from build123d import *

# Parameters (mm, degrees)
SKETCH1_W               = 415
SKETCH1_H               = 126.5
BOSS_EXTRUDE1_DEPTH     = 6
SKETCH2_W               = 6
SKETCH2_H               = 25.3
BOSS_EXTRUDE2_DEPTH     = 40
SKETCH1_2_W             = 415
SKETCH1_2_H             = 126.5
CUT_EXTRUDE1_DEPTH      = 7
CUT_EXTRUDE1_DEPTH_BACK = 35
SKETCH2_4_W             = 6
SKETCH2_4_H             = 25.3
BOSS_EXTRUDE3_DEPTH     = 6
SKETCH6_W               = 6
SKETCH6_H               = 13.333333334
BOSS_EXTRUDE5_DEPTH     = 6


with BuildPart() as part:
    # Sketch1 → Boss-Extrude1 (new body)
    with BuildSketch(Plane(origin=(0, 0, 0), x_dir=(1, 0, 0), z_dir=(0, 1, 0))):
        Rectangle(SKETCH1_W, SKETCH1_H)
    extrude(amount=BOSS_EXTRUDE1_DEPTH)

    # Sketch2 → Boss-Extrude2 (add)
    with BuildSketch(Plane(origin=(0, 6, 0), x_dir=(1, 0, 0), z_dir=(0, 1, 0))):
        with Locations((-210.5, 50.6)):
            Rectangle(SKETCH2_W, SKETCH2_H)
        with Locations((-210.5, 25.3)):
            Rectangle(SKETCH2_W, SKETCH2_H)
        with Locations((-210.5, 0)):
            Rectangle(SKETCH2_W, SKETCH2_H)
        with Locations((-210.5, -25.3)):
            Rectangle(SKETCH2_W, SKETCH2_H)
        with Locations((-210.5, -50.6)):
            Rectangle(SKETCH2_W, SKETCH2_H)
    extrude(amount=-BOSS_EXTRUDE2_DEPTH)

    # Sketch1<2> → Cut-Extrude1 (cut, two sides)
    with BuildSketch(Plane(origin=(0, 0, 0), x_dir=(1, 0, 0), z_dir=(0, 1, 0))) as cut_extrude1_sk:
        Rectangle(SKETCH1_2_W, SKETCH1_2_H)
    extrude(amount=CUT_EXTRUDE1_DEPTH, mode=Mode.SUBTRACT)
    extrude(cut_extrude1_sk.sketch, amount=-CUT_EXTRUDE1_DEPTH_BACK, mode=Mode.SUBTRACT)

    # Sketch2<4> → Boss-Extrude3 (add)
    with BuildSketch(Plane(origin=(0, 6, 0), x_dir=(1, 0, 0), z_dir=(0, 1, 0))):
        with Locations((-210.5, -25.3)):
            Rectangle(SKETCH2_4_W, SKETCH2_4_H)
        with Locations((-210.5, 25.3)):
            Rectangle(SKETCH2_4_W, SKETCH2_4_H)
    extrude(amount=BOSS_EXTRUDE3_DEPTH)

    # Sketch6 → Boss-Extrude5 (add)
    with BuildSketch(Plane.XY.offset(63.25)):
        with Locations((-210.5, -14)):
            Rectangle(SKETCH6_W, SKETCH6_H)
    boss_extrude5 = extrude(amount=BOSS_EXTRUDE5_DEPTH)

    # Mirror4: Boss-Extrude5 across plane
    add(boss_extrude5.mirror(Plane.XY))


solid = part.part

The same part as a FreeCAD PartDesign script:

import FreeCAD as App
import Part
import Sketcher

doc = App.newDocument("Part")
body = doc.addObject("PartDesign::Body", "Body")

# Sketch on XZ plane
sketch1 = body.newObject("Sketcher::SketchObject", "Sketch")
sketch1.AttachmentSupport = (doc.getObject("XZ_Plane"), [""])
sketch1.MapMode = "FlatFace"
sketch1.addGeometry(Part.LineSegment(App.Vector(-208, -63, 0), App.Vector(-208, 63, 0)), False)
sketch1.addGeometry(Part.LineSegment(App.Vector(-208, 63, 0), App.Vector(208, 63, 0)), False)
sketch1.addGeometry(Part.LineSegment(App.Vector(208, 63, 0), App.Vector(208, -63, 0)), False)
sketch1.addGeometry(Part.LineSegment(App.Vector(208, -63, 0), App.Vector(-208, -63, 0)), False)
sketch1.addConstraint(Sketcher.Constraint("Coincident", 0, 2, 1, 1))
sketch1.addConstraint(Sketcher.Constraint("Coincident", 1, 2, 2, 1))
sketch1.addConstraint(Sketcher.Constraint("Coincident", 2, 2, 3, 1))
sketch1.addConstraint(Sketcher.Constraint("Coincident", 3, 2, 0, 1))
sketch1.addConstraint(Sketcher.Constraint("Vertical", 0))
sketch1.addConstraint(Sketcher.Constraint("Horizontal", 1))
sketch1.addConstraint(Sketcher.Constraint("Vertical", 2))
sketch1.addConstraint(Sketcher.Constraint("Horizontal", 3))
sketch1.addConstraint(Sketcher.Constraint("Symmetric", 0, 2, 2, 2, -1, 1))
sketch1.addConstraint(Sketcher.Constraint("DistanceX", 1, 1, 1, 2, 415.0))
sketch1.addConstraint(Sketcher.Constraint("DistanceY", 0, 1, 0, 2, 126.5))
pad1 = body.newObject("PartDesign::Pad", "Pad")
pad1.Profile = sketch1
pad1.Length = 6
pad1.Reversed = True

# Sketch on XZ plane
sketch2 = body.newObject("Sketcher::SketchObject", "Sketch001")
sketch2.AttachmentSupport = (doc.getObject("XZ_Plane"), [""])
sketch2.MapMode = "FlatFace"
sketch2.AttachmentOffset = App.Placement(App.Vector(0, 0, -6), App.Rotation())
sketch2.addGeometry(Part.LineSegment(App.Vector(-214, -63, 0), App.Vector(-214, 63, 0)), False)
sketch2.addGeometry(Part.LineSegment(App.Vector(-214, 63, 0), App.Vector(-208, 63, 0)), False)
sketch2.addGeometry(Part.LineSegment(App.Vector(-208, 63, 0), App.Vector(-208, -63, 0)), False)
sketch2.addGeometry(Part.LineSegment(App.Vector(-208, -63, 0), App.Vector(-214, -63, 0)), False)
sketch2.addConstraint(Sketcher.Constraint("Coincident", 0, 2, 1, 1))
sketch2.addConstraint(Sketcher.Constraint("Coincident", 1, 2, 2, 1))
sketch2.addConstraint(Sketcher.Constraint("Coincident", 2, 2, 3, 1))
sketch2.addConstraint(Sketcher.Constraint("Coincident", 3, 2, 0, 1))
sketch2.addConstraint(Sketcher.Constraint("Vertical", 0))
sketch2.addConstraint(Sketcher.Constraint("Horizontal", 1))
sketch2.addConstraint(Sketcher.Constraint("Vertical", 2))
sketch2.addConstraint(Sketcher.Constraint("Horizontal", 3))
sketch2.addConstraint(Sketcher.Constraint("DistanceX", 1, 1, 1, 2, 6.0))
sketch2.addConstraint(Sketcher.Constraint("DistanceY", 0, 1, 0, 2, 126.5))
sketch2.addConstraint(Sketcher.Constraint("DistanceX", 0, 2, -1, 1, 213.5))
sketch2.addConstraint(Sketcher.Constraint("DistanceY", -1, 1, 0, 2, 63.25))
pad2 = body.newObject("PartDesign::Pad", "Pad001")
pad2.Profile = sketch2
pad2.Length = 40

# Sketch on XZ plane
sketch3 = body.newObject("Sketcher::SketchObject", "Sketch002")
sketch3.AttachmentSupport = (doc.getObject("XZ_Plane"), [""])
sketch3.MapMode = "FlatFace"
sketch3.addGeometry(Part.LineSegment(App.Vector(-208, -63, 0), App.Vector(-208, 63, 0)), False)
sketch3.addGeometry(Part.LineSegment(App.Vector(-208, 63, 0), App.Vector(208, 63, 0)), False)
sketch3.addGeometry(Part.LineSegment(App.Vector(208, 63, 0), App.Vector(208, -63, 0)), False)
sketch3.addGeometry(Part.LineSegment(App.Vector(208, -63, 0), App.Vector(-208, -63, 0)), False)
sketch3.addConstraint(Sketcher.Constraint("Coincident", 0, 2, 1, 1))
sketch3.addConstraint(Sketcher.Constraint("Coincident", 1, 2, 2, 1))
sketch3.addConstraint(Sketcher.Constraint("Coincident", 2, 2, 3, 1))
sketch3.addConstraint(Sketcher.Constraint("Coincident", 3, 2, 0, 1))
sketch3.addConstraint(Sketcher.Constraint("Vertical", 0))
sketch3.addConstraint(Sketcher.Constraint("Horizontal", 1))
sketch3.addConstraint(Sketcher.Constraint("Vertical", 2))
sketch3.addConstraint(Sketcher.Constraint("Horizontal", 3))
sketch3.addConstraint(Sketcher.Constraint("Symmetric", 0, 2, 2, 2, -1, 1))
sketch3.addConstraint(Sketcher.Constraint("DistanceX", 1, 1, 1, 2, 415.0))
sketch3.addConstraint(Sketcher.Constraint("DistanceY", 0, 1, 0, 2, 126.5))
pocket1 = body.newObject("PartDesign::Pocket", "Pocket")
pocket1.Profile = sketch3
pocket1.Type = "ThroughAll"
pocket1.Midplane = True

# Sketch on XZ plane
sketch4 = body.newObject("Sketcher::SketchObject", "Sketch003")
sketch4.AttachmentSupport = (doc.getObject("XZ_Plane"), [""])
sketch4.MapMode = "FlatFace"
sketch4.AttachmentOffset = App.Placement(App.Vector(0, 0, -6), App.Rotation())
sketch4.addGeometry(Part.LineSegment(App.Vector(-214, 13, 0), App.Vector(-214, 38, 0)), False)
sketch4.addGeometry(Part.LineSegment(App.Vector(-214, 38, 0), App.Vector(-208, 38, 0)), False)
sketch4.addGeometry(Part.LineSegment(App.Vector(-208, 38, 0), App.Vector(-208, 13, 0)), False)
sketch4.addGeometry(Part.LineSegment(App.Vector(-208, 13, 0), App.Vector(-214, 13, 0)), False)
sketch4.addGeometry(Part.LineSegment(App.Vector(-214, -38, 0), App.Vector(-214, -13, 0)), False)
sketch4.addGeometry(Part.LineSegment(App.Vector(-214, -13, 0), App.Vector(-208, -13, 0)), False)
sketch4.addGeometry(Part.LineSegment(App.Vector(-208, -13, 0), App.Vector(-208, -38, 0)), False)
sketch4.addGeometry(Part.LineSegment(App.Vector(-208, -38, 0), App.Vector(-214, -38, 0)), False)
sketch4.addConstraint(Sketcher.Constraint("Coincident", 0, 2, 1, 1))
sketch4.addConstraint(Sketcher.Constraint("Coincident", 1, 2, 2, 1))
sketch4.addConstraint(Sketcher.Constraint("Coincident", 2, 2, 3, 1))
sketch4.addConstraint(Sketcher.Constraint("Coincident", 3, 2, 0, 1))
sketch4.addConstraint(Sketcher.Constraint("Coincident", 4, 2, 5, 1))
sketch4.addConstraint(Sketcher.Constraint("Coincident", 5, 2, 6, 1))
sketch4.addConstraint(Sketcher.Constraint("Coincident", 6, 2, 7, 1))
sketch4.addConstraint(Sketcher.Constraint("Coincident", 7, 2, 4, 1))
sketch4.addConstraint(Sketcher.Constraint("Vertical", 0))
sketch4.addConstraint(Sketcher.Constraint("Horizontal", 1))
sketch4.addConstraint(Sketcher.Constraint("Vertical", 2))
sketch4.addConstraint(Sketcher.Constraint("Horizontal", 3))
sketch4.addConstraint(Sketcher.Constraint("Vertical", 4))
sketch4.addConstraint(Sketcher.Constraint("Horizontal", 5))
sketch4.addConstraint(Sketcher.Constraint("Vertical", 6))
sketch4.addConstraint(Sketcher.Constraint("Horizontal", 7))
sketch4.addConstraint(Sketcher.Constraint("Symmetric", 3, 2, 4, 2, -1))
sketch4.addConstraint(Sketcher.Constraint("Symmetric", 1, 2, 6, 2, -1))
sketch4.addConstraint(Sketcher.Constraint("DistanceX", 1, 1, 1, 2, 6.0))
sketch4.addConstraint(Sketcher.Constraint("DistanceY", 0, 1, 0, 2, 25.3))
sketch4.addConstraint(Sketcher.Constraint("DistanceX", 0, 2, -1, 1, 213.5))
sketch4.addConstraint(Sketcher.Constraint("DistanceY", 4, 2, 3, 2, 25.3))
pad3 = body.newObject("PartDesign::Pad", "Pad002")
pad3.Profile = sketch4
pad3.Length = 6
pad3.Reversed = True

# Sketch on XY plane
sketch5 = body.newObject("Sketcher::SketchObject", "Sketch004")
sketch5.AttachmentSupport = (doc.getObject("XY_Plane"), [""])
sketch5.MapMode = "FlatFace"
sketch5.AttachmentOffset = App.Placement(App.Vector(0, 0, 63.25), App.Rotation())
sketch5.addGeometry(Part.LineSegment(App.Vector(-214, -7, 0), App.Vector(-214, -21, 0)), False)
sketch5.addGeometry(Part.LineSegment(App.Vector(-214, -21, 0), App.Vector(-208, -21, 0)), False)
sketch5.addGeometry(Part.LineSegment(App.Vector(-208, -21, 0), App.Vector(-208, -7, 0)), False)
sketch5.addGeometry(Part.LineSegment(App.Vector(-208, -7, 0), App.Vector(-214, -7, 0)), False)
sketch5.addConstraint(Sketcher.Constraint("Coincident", 0, 2, 1, 1))
sketch5.addConstraint(Sketcher.Constraint("Coincident", 1, 2, 2, 1))
sketch5.addConstraint(Sketcher.Constraint("Coincident", 2, 2, 3, 1))
sketch5.addConstraint(Sketcher.Constraint("Coincident", 3, 2, 0, 1))
sketch5.addConstraint(Sketcher.Constraint("Vertical", 0))
sketch5.addConstraint(Sketcher.Constraint("Horizontal", 1))
sketch5.addConstraint(Sketcher.Constraint("Vertical", 2))
sketch5.addConstraint(Sketcher.Constraint("Horizontal", 3))
sketch5.addConstraint(Sketcher.Constraint("DistanceX", 1, 1, 1, 2, 6.0))
sketch5.addConstraint(Sketcher.Constraint("DistanceX", 0, 2, -1, 1, 213.5))
sketch5.addConstraint(Sketcher.Constraint("DistanceY", 0, 2, 0, 1, 13.333333))
sketch5.addConstraint(Sketcher.Constraint("DistanceY", 0, 2, -1, 1, 20.666667))
pad4 = body.newObject("PartDesign::Pad", "Pad003")
pad4.Profile = sketch5
pad4.Length = 6
doc.recompute()

mirrored = body.newObject("PartDesign::Mirrored", "Mirrored")
mirrored.Originals = [pad4]
mirrored.MirrorPlane = (doc.getObject("XY_Plane"), [""])
body.Tip = mirrored

doc.recompute()
